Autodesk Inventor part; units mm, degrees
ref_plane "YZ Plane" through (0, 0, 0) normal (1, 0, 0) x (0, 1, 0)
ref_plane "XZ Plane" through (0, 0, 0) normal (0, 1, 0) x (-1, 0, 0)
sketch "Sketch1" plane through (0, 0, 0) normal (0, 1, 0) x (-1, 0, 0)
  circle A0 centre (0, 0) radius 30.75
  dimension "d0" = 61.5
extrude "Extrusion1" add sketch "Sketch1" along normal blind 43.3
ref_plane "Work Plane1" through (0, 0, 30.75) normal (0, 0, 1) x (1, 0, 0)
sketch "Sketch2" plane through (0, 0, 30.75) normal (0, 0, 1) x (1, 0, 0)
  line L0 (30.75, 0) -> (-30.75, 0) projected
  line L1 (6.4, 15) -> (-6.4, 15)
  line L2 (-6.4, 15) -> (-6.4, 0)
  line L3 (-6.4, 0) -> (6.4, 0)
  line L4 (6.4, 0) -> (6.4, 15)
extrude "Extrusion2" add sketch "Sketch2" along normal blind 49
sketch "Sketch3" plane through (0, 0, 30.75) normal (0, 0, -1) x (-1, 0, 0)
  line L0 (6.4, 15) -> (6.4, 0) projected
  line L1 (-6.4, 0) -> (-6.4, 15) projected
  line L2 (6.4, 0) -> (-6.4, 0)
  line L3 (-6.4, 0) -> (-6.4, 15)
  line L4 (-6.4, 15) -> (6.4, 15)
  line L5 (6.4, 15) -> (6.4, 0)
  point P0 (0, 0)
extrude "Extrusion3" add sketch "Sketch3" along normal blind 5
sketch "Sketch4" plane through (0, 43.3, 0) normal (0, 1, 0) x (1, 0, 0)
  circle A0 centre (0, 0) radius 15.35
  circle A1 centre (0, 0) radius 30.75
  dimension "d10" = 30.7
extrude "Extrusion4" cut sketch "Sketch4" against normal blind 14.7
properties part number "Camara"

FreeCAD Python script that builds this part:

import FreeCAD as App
import Part
import Sketcher
Q = App.Units.Quantity

doc = App.newDocument("Part")
body = doc.addObject("PartDesign::Body", "Body")
body.AllowCompound = True

# Sketch on XZ plane
sketch1 = doc.addObject("Sketcher::SketchObject", "Sketch")
body.addObject(sketch1)
sketch1.AttachmentSupport = (doc.XZ_Plane, [""])
sketch1.MapMode = "FlatFace"
sketch1.addGeometry(Part.Circle(App.Vector(0, 0, 0), App.Vector(0, 0, 1), 31), False)
sketch1.addConstraint(Sketcher.Constraint("Coincident", 0, 3, -1, 1))
sketch1.addConstraint(Sketcher.Constraint("Diameter", 0, Q("61.5 mm")))
pad1 = doc.addObject("PartDesign::Pad", "Pad")
body.addObject(pad1)
pad1.Profile = sketch1
pad1.Length = 43.3
pad1.Reversed = True

# Sketch on XY plane
sketch2 = doc.addObject("Sketcher::SketchObject", "Sketch001")
body.addObject(sketch2)
sketch2.AttachmentSupport = (doc.XY_Plane, [""])
sketch2.MapMode = "FlatFace"
sketch2.AttachmentOffset = App.Placement(App.Vector(0, 0, 30.75), App.Rotation())
sketch2.addGeometry(Part.LineSegment(App.Vector(-6, 0, 0), App.Vector(6, 0, 0)), False)
sketch2.addGeometry(Part.LineSegment(App.Vector(6, 0, 0), App.Vector(6, 15, 0)), False)
sketch2.addGeometry(Part.LineSegment(App.Vector(6, 15, 0), App.Vector(-6, 15, 0)), False)
sketch2.addGeometry(Part.LineSegment(App.Vector(-6, 15, 0), App.Vector(-6, 0, 0)), False)
sketch2.addConstraint(Sketcher.Constraint("Coincident", 0, 2, 1, 1))
sketch2.addConstraint(Sketcher.Constraint("Coincident", 1, 2, 2, 1))
sketch2.addConstraint(Sketcher.Constraint("Coincident", 2, 2, 3, 1))
sketch2.addConstraint(Sketcher.Constraint("Coincident", 3, 2, 0, 1))
sketch2.addConstraint(Sketcher.Constraint("Horizontal", 0))
sketch2.addConstraint(Sketcher.Constraint("Vertical", 1))
sketch2.addConstraint(Sketcher.Constraint("Horizontal", 2))
sketch2.addConstraint(Sketcher.Constraint("Vertical", 3))
sketch2.addConstraint(Sketcher.Constraint("Symmetric", 0, 2, 3, 2, -1, 1))
sketch2.addConstraint(Sketcher.Constraint("DistanceY", 1, 1, 1, 2, Q("15 mm")))
sketch2.addConstraint(Sketcher.Constraint("DistanceX", 0, 1, 0, 2, Q("12.8 mm")))
pad2 = doc.addObject("PartDesign::Pad", "Pad001")
body.addObject(pad2)
pad2.Profile = sketch2
pad2.Length = 49

# Sketch on XY plane
sketch3 = doc.addObject("Sketcher::SketchObject", "Sketch002")
body.addObject(sketch3)
sketch3.AttachmentSupport = (doc.XY_Plane, [""])
sketch3.MapMode = "FlatFace"
sketch3.AttachmentOffset = App.Placement(App.Vector(0, 0, 30.75), App.Rotation())
sketch3.addGeometry(Part.LineSegment(App.Vector(-6, 0, 0), App.Vector(-6, 15, 0)), False)
sketch3.addGeometry(Part.LineSegment(App.Vector(-6, 15, 0), App.Vector(6, 15, 0)), False)
sketch3.addGeometry(Part.LineSegment(App.Vector(6, 15, 0), App.Vector(6, 0, 0)), False)
sketch3.addGeometry(Part.LineSegment(App.Vector(6, 0, 0), App.Vector(-6, 0, 0)), False)
sketch3.addConstraint(Sketcher.Constraint("Coincident", 0, 2, 1, 1))
sketch3.addConstraint(Sketcher.Constraint("Coincident", 1, 2, 2, 1))
sketch3.addConstraint(Sketcher.Constraint("Coincident", 2, 2, 3, 1))
sketch3.addConstraint(Sketcher.Constraint("Coincident", 3, 2, 0, 1))
sketch3.addConstraint(Sketcher.Constraint("Vertical", 0))
sketch3.addConstraint(Sketcher.Constraint("Horizontal", 1))
sketch3.addConstraint(Sketcher.Constraint("Vertical", 2))
sketch3.addConstraint(Sketcher.Constraint("Horizontal", 3))
sketch3.addConstraint(Sketcher.Constraint("Symmetric", 2, 2, 3, 2, -1, 1))
sketch3.addConstraint(Sketcher.Constraint("DistanceY", 0, 1, 0, 2, Q("15 mm")))
sketch3.addConstraint(Sketcher.Constraint("DistanceX", 1, 1, 1, 2, Q("12.8 mm")))
pad3 = doc.addObject("PartDesign::Pad", "Pad002")
body.addObject(pad3)
pad3.Profile = sketch3
pad3.Length = 5
pad3.Reversed = True

# Sketch on XZ plane
sketch4 = doc.addObject("Sketcher::SketchObject", "Sketch003")
body.addObject(sketch4)
sketch4.AttachmentSupport = (doc.XZ_Plane, [""])
sketch4.MapMode = "FlatFace"
sketch4.AttachmentOffset = App.Placement(App.Vector(0, 0, -43.3), App.Rotation())
sketch4.addGeometry(Part.Circle(App.Vector(0, 0, 0), App.Vector(0, 0, 1), 31), False)
sketch4.addGeometry(Part.Circle(App.Vector(0, 0, 0), App.Vector(0, 0, 1), 15), False)
sketch4.addConstraint(Sketcher.Constraint("Coincident", 0, 3, -1, 1))
sketch4.addConstraint(Sketcher.Constraint("Coincident", 1, 3, -1, 1))
sketch4.addConstraint(Sketcher.Constraint("Diameter", 1, Q("30.7 mm")))
sketch4.addConstraint(Sketcher.Constraint("Diameter", 0, Q("61.5 mm")))
pocket1 = doc.addObject("PartDesign::Pocket", "Pocket")
body.addObject(pocket1)
pocket1.Profile = sketch4
pocket1.Length = 14.7
pocket1.Reversed = True

doc.recompute()
